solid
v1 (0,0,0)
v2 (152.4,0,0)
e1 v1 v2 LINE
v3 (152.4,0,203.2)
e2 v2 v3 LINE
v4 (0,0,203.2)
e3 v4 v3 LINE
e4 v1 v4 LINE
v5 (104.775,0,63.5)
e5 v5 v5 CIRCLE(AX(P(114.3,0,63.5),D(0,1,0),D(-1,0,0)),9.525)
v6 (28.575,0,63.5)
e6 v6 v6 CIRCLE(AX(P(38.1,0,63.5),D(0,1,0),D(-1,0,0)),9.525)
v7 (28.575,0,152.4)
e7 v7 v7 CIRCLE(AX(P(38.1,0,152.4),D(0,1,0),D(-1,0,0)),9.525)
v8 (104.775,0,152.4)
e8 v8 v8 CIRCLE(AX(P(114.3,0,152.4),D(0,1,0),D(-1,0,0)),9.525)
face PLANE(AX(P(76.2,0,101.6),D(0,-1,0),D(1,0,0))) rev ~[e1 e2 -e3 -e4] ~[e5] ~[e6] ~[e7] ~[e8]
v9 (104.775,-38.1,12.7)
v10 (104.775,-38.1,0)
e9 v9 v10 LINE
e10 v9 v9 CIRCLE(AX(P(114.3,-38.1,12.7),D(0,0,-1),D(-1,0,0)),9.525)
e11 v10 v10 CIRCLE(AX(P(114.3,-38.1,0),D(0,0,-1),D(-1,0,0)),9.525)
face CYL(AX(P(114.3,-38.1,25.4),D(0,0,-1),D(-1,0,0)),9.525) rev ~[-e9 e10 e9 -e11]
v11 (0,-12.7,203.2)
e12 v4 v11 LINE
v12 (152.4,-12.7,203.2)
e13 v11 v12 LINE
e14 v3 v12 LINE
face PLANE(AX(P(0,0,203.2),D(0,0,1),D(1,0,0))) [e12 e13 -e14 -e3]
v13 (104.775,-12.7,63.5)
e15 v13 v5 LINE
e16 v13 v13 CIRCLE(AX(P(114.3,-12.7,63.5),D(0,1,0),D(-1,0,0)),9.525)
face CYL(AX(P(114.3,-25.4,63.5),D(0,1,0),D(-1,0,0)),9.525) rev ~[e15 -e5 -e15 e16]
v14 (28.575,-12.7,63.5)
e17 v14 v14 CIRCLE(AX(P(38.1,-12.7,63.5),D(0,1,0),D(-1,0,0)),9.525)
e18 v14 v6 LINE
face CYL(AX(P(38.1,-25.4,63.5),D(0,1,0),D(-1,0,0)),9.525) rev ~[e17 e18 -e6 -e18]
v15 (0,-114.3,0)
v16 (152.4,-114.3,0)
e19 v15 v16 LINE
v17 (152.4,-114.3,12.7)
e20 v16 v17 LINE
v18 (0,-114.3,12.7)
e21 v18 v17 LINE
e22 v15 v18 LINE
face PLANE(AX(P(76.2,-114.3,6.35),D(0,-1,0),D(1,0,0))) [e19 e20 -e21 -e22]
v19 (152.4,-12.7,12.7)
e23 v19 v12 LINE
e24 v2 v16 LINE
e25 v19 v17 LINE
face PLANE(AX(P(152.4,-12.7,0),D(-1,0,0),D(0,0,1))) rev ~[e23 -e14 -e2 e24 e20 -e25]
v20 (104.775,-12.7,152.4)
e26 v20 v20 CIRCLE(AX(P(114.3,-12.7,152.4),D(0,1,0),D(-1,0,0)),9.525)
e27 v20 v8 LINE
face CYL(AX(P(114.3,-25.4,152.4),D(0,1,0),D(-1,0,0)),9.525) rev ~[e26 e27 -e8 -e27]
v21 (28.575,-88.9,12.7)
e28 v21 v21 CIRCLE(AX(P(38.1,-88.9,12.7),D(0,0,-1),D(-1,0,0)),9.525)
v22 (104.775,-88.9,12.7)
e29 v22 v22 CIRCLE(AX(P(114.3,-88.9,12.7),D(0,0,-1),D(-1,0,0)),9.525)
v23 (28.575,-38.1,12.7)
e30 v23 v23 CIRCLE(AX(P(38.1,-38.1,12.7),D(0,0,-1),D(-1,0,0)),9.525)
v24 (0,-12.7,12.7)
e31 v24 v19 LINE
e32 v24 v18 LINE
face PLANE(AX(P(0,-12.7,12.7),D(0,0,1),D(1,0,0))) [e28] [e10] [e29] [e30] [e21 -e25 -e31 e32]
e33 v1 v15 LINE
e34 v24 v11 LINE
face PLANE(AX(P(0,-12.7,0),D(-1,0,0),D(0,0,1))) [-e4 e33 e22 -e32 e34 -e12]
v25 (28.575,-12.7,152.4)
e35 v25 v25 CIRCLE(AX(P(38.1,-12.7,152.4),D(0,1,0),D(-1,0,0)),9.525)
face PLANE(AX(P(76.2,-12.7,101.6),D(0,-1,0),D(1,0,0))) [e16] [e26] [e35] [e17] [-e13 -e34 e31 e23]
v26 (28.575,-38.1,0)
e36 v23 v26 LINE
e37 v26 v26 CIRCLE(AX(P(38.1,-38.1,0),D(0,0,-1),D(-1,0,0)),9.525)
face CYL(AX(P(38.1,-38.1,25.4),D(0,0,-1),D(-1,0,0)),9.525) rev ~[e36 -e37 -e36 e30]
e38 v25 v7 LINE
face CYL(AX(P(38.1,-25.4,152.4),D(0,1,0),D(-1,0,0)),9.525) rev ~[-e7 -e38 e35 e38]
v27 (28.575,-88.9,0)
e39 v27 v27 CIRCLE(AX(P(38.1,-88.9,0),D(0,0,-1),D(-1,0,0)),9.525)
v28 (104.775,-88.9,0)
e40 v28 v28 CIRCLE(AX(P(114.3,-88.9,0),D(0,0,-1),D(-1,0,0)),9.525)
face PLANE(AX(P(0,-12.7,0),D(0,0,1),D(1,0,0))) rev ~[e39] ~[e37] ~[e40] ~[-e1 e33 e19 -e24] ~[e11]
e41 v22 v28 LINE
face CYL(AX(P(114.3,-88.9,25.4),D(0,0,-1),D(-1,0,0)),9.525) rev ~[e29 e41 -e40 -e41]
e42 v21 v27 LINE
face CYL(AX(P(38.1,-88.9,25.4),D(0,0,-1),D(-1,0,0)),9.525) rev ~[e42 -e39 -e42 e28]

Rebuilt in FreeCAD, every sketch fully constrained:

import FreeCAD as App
import Part
import Sketcher

V = App.Vector
Q = App.Units.Quantity

doc = App.newDocument("Part")
params = doc.addObject("Spreadsheet::Sheet", "Params")
for row, (alias, value) in enumerate([
    ("sketch1_width", "6 in"),
    ("sketch1_height", "8 in"),
    ("pad1_length", "0.5 in"),
    ("sketch2_width", "6 in"),
    ("sketch2_height", "0.5 in"),
    ("pad2_length", "4 in"),
    ("sketch3_diameter", "0.75 in"),
    ("hole_diameter", "0.75 in"),
    ("hole_depth", "0.5 in"),
    ("sketch4_diameter", "0.75 in"),
    ("hole2_diameter", "0.75 in"),
    ("hole2_depth", "0.5 in"),
    ("sketch5_diameter", "0.75 in"),
    ("hole3_diameter", "0.75 in"),
    ("hole3_depth", "0.5 in"),
], start=1):
    params.set(f"A{row}", alias)
    params.set(f"B{row}", "=" + value)
    params.setAlias(f"B{row}", alias)

body = doc.addObject("PartDesign::Body", "Body")

sketch1 = body.newObject("Sketcher::SketchObject", "Sketch")
sketch1.AttachmentSupport = (doc.getObject("XZ_Plane"), [""])
sketch1.MapMode = "FlatFace"
sketch1.addGeometry(Part.LineSegment(V(0, 203, 0), V(0, 0, 0)), False)
sketch1.addGeometry(Part.LineSegment(V(0, 0, 0), V(152, 0, 0)), False)
sketch1.addGeometry(Part.LineSegment(V(152, 0, 0), V(152, 203, 0)), False)
sketch1.addGeometry(Part.LineSegment(V(152, 203, 0), V(0, 203, 0)), False)
sketch1.addConstraint(Sketcher.Constraint("Coincident", 0, 2, 1, 1))
sketch1.addConstraint(Sketcher.Constraint("Coincident", 1, 2, 2, 1))
sketch1.addConstraint(Sketcher.Constraint("Coincident", 2, 2, 3, 1))
sketch1.addConstraint(Sketcher.Constraint("Coincident", 3, 2, 0, 1))
sketch1.addConstraint(Sketcher.Constraint("Vertical", 0))
sketch1.addConstraint(Sketcher.Constraint("Horizontal", 1))
sketch1.addConstraint(Sketcher.Constraint("Vertical", 2))
sketch1.addConstraint(Sketcher.Constraint("Horizontal", 3))
sketch1.addConstraint(Sketcher.Constraint("Coincident", 0, 2, -1, 1))
sketch1.addConstraint(Sketcher.Constraint("DistanceX", 1, 1, 1, 2, Q("6 in")))
sketch1.addConstraint(Sketcher.Constraint("DistanceY", 0, 2, 0, 1, Q("8 in")))
sketch1.setExpression("Constraints[9]", "Params.sketch1_width")
sketch1.setExpression("Constraints[10]", "Params.sketch1_height")
pad1 = body.newObject("PartDesign::Pad", "Pad")
pad1.Profile = sketch1
pad1.setExpression("Length", "Params.pad1_length")

sketch2 = body.newObject("Sketcher::SketchObject", "Sketch001")
sketch2.AttachmentSupport = (doc.getObject("XZ_Plane"), [""])
sketch2.MapMode = "FlatFace"
sketch2.AttachmentOffset = App.Placement(V(0, 0, 0.5 * 25.4), App.Rotation())
sketch2.addGeometry(Part.LineSegment(V(0, 13, 0), V(0, 0, 0)), False)
sketch2.addGeometry(Part.LineSegment(V(0, 0, 0), V(152, 0, 0)), False)
sketch2.addGeometry(Part.LineSegment(V(152, 0, 0), V(152, 13, 0)), False)
sketch2.addGeometry(Part.LineSegment(V(152, 13, 0), V(0, 13, 0)), False)
sketch2.addConstraint(Sketcher.Constraint("Coincident", 0, 2, 1, 1))
sketch2.addConstraint(Sketcher.Constraint("Coincident", 1, 2, 2, 1))
sketch2.addConstraint(Sketcher.Constraint("Coincident", 2, 2, 3, 1))
sketch2.addConstraint(Sketcher.Constraint("Coincident", 3, 2, 0, 1))
sketch2.addConstraint(Sketcher.Constraint("Vertical", 0))
sketch2.addConstraint(Sketcher.Constraint("Horizontal", 1))
sketch2.addConstraint(Sketcher.Constraint("Vertical", 2))
sketch2.addConstraint(Sketcher.Constraint("Horizontal", 3))
sketch2.addConstraint(Sketcher.Constraint("Coincident", 0, 2, -1, 1))
sketch2.addConstraint(Sketcher.Constraint("DistanceX", 1, 1, 1, 2, Q("6 in")))
sketch2.addConstraint(Sketcher.Constraint("DistanceY", 0, 2, 0, 1, Q("0.5 in")))
sketch2.setExpression("Constraints[9]", "Params.sketch2_width")
sketch2.setExpression("Constraints[10]", "Params.sketch2_height")
pad2 = body.newObject("PartDesign::Pad", "Pad001")
pad2.Profile = sketch2
pad2.setExpression("Length", "Params.pad2_length")

sketch3 = body.newObject("Sketcher::SketchObject", "Sketch002")
sketch3.AttachmentSupport = (doc.getObject("XY_Plane"), [""])
sketch3.MapMode = "FlatFace"
sketch3.AttachmentOffset = App.Placement(V(0, 0, 0.5 * 25.4), App.Rotation())
sketch3.addGeometry(Part.Circle(V(38, -89, 0), V(0, 0, 1), 10), False)
sketch3.addConstraint(Sketcher.Constraint("Diameter", 0, Q("0.75 in")))
sketch3.addConstraint(Sketcher.Constraint("DistanceX", -1, 1, 0, 3, Q("1.5 in")))
sketch3.addConstraint(Sketcher.Constraint("DistanceY", 0, 3, -1, 1, Q("3.5 in")))
sketch3.setExpression("Constraints[0]", "Params.sketch3_diameter")
doc.recompute()
hole = body.newObject("PartDesign::Hole", "Hole")
hole.Profile = sketch3
hole.ThreadType = "None"
hole.setExpression("Diameter", "Params.hole_diameter")
hole.DepthType = "Dimension"
hole.setExpression("Depth", "Params.hole_depth")
hole.DrillPoint = "Flat"

sketch4 = body.newObject("Sketcher::SketchObject", "Sketch003")
sketch4.AttachmentSupport = (doc.getObject("XY_Plane"), [""])
sketch4.MapMode = "FlatFace"
sketch4.AttachmentOffset = App.Placement(V(0, 0, 0.5 * 25.4), App.Rotation())
sketch4.addGeometry(Part.Circle(V(38, -38, 0), V(0, 0, 1), 10), False)
sketch4.addGeometry(Part.Circle(V(114, -38, 0), V(0, 0, 1), 10), False)
sketch4.addGeometry(Part.Circle(V(114, -89, 0), V(0, 0, 1), 10), False)
sketch4.addConstraint(Sketcher.Constraint("Equal", 0, 1))
sketch4.addConstraint(Sketcher.Constraint("Equal", 1, 2))
sketch4.addConstraint(Sketcher.Constraint("Horizontal", 0, 3, 1, 3))
sketch4.addConstraint(Sketcher.Constraint("Vertical", 1, 3, 2, 3))
sketch4.addConstraint(Sketcher.Constraint("Diameter", 0, Q("0.75 in")))
sketch4.addConstraint(Sketcher.Constraint("DistanceX", 0, 3, 1, 3, Q("3 in")))
sketch4.addConstraint(Sketcher.Constraint("DistanceY", 2, 3, 1, 3, Q("2 in")))
sketch4.addConstraint(Sketcher.Constraint("DistanceX", -1, 1, 0, 3, Q("1.5 in")))
sketch4.addConstraint(Sketcher.Constraint("DistanceY", 0, 3, -1, 1, Q("1.5 in")))
sketch4.setExpression("Constraints[4]", "Params.sketch4_diameter")
doc.recompute()
hole2 = body.newObject("PartDesign::Hole", "Hole001")
hole2.Profile = sketch4
hole2.ThreadType = "None"
hole2.setExpression("Diameter", "Params.hole2_diameter")
hole2.DepthType = "Dimension"
hole2.setExpression("Depth", "Params.hole2_depth")
hole2.DrillPoint = "Flat"

sketch5 = body.newObject("Sketcher::SketchObject", "Sketch004")
sketch5.AttachmentSupport = (doc.getObject("XZ_Plane"), [""])
sketch5.MapMode = "FlatFace"
sketch5.AttachmentOffset = App.Placement(V(0, 0, 0.5 * 25.4), App.Rotation())
sketch5.addGeometry(Part.Circle(V(38, 152, 0), V(0, 0, 1), 10), False)
sketch5.addGeometry(Part.Circle(V(114, 152, 0), V(0, 0, 1), 10), False)
sketch5.addGeometry(Part.Circle(V(114, 64, 0), V(0, 0, 1), 10), False)
sketch5.addGeometry(Part.Circle(V(38, 64, 0), V(0, 0, 1), 10), False)
sketch5.addConstraint(Sketcher.Constraint("Equal", 0, 1))
sketch5.addConstraint(Sketcher.Constraint("Equal", 1, 2))
sketch5.addConstraint(Sketcher.Constraint("Equal", 2, 3))
sketch5.addConstraint(Sketcher.Constraint("Horizontal", 0, 3, 1, 3))
sketch5.addConstraint(Sketcher.Constraint("Horizontal", 2, 3, 3, 3))
sketch5.addConstraint(Sketcher.Constraint("Vertical", 1, 3, 2, 3))
sketch5.addConstraint(Sketcher.Constraint("Vertical", 0, 3, 3, 3))
sketch5.addConstraint(Sketcher.Constraint("Diameter", 0, Q("0.75 in")))
sketch5.addConstraint(Sketcher.Constraint("DistanceY", -1, 1, 0, 3, Q("6 in")))
sketch5.addConstraint(Sketcher.Constraint("DistanceX", 0, 3, 1, 3, Q("3 in")))
sketch5.addConstraint(Sketcher.Constraint("DistanceX", -1, 1, 0, 3, Q("1.5 in")))
sketch5.addConstraint(Sketcher.Constraint("DistanceY", -1, 1, 2, 3, Q("2.5 in")))
sketch5.setExpression("Constraints[7]", "Params.sketch5_diameter")
doc.recompute()
hole3 = body.newObject("PartDesign::Hole", "Hole002")
hole3.Profile = sketch5
hole3.ThreadType = "None"
hole3.setExpression("Diameter", "Params.hole3_diameter")
hole3.DepthType = "Dimension"
hole3.setExpression("Depth", "Params.hole3_depth")
hole3.DrillPoint = "Flat"

doc.recompute()
